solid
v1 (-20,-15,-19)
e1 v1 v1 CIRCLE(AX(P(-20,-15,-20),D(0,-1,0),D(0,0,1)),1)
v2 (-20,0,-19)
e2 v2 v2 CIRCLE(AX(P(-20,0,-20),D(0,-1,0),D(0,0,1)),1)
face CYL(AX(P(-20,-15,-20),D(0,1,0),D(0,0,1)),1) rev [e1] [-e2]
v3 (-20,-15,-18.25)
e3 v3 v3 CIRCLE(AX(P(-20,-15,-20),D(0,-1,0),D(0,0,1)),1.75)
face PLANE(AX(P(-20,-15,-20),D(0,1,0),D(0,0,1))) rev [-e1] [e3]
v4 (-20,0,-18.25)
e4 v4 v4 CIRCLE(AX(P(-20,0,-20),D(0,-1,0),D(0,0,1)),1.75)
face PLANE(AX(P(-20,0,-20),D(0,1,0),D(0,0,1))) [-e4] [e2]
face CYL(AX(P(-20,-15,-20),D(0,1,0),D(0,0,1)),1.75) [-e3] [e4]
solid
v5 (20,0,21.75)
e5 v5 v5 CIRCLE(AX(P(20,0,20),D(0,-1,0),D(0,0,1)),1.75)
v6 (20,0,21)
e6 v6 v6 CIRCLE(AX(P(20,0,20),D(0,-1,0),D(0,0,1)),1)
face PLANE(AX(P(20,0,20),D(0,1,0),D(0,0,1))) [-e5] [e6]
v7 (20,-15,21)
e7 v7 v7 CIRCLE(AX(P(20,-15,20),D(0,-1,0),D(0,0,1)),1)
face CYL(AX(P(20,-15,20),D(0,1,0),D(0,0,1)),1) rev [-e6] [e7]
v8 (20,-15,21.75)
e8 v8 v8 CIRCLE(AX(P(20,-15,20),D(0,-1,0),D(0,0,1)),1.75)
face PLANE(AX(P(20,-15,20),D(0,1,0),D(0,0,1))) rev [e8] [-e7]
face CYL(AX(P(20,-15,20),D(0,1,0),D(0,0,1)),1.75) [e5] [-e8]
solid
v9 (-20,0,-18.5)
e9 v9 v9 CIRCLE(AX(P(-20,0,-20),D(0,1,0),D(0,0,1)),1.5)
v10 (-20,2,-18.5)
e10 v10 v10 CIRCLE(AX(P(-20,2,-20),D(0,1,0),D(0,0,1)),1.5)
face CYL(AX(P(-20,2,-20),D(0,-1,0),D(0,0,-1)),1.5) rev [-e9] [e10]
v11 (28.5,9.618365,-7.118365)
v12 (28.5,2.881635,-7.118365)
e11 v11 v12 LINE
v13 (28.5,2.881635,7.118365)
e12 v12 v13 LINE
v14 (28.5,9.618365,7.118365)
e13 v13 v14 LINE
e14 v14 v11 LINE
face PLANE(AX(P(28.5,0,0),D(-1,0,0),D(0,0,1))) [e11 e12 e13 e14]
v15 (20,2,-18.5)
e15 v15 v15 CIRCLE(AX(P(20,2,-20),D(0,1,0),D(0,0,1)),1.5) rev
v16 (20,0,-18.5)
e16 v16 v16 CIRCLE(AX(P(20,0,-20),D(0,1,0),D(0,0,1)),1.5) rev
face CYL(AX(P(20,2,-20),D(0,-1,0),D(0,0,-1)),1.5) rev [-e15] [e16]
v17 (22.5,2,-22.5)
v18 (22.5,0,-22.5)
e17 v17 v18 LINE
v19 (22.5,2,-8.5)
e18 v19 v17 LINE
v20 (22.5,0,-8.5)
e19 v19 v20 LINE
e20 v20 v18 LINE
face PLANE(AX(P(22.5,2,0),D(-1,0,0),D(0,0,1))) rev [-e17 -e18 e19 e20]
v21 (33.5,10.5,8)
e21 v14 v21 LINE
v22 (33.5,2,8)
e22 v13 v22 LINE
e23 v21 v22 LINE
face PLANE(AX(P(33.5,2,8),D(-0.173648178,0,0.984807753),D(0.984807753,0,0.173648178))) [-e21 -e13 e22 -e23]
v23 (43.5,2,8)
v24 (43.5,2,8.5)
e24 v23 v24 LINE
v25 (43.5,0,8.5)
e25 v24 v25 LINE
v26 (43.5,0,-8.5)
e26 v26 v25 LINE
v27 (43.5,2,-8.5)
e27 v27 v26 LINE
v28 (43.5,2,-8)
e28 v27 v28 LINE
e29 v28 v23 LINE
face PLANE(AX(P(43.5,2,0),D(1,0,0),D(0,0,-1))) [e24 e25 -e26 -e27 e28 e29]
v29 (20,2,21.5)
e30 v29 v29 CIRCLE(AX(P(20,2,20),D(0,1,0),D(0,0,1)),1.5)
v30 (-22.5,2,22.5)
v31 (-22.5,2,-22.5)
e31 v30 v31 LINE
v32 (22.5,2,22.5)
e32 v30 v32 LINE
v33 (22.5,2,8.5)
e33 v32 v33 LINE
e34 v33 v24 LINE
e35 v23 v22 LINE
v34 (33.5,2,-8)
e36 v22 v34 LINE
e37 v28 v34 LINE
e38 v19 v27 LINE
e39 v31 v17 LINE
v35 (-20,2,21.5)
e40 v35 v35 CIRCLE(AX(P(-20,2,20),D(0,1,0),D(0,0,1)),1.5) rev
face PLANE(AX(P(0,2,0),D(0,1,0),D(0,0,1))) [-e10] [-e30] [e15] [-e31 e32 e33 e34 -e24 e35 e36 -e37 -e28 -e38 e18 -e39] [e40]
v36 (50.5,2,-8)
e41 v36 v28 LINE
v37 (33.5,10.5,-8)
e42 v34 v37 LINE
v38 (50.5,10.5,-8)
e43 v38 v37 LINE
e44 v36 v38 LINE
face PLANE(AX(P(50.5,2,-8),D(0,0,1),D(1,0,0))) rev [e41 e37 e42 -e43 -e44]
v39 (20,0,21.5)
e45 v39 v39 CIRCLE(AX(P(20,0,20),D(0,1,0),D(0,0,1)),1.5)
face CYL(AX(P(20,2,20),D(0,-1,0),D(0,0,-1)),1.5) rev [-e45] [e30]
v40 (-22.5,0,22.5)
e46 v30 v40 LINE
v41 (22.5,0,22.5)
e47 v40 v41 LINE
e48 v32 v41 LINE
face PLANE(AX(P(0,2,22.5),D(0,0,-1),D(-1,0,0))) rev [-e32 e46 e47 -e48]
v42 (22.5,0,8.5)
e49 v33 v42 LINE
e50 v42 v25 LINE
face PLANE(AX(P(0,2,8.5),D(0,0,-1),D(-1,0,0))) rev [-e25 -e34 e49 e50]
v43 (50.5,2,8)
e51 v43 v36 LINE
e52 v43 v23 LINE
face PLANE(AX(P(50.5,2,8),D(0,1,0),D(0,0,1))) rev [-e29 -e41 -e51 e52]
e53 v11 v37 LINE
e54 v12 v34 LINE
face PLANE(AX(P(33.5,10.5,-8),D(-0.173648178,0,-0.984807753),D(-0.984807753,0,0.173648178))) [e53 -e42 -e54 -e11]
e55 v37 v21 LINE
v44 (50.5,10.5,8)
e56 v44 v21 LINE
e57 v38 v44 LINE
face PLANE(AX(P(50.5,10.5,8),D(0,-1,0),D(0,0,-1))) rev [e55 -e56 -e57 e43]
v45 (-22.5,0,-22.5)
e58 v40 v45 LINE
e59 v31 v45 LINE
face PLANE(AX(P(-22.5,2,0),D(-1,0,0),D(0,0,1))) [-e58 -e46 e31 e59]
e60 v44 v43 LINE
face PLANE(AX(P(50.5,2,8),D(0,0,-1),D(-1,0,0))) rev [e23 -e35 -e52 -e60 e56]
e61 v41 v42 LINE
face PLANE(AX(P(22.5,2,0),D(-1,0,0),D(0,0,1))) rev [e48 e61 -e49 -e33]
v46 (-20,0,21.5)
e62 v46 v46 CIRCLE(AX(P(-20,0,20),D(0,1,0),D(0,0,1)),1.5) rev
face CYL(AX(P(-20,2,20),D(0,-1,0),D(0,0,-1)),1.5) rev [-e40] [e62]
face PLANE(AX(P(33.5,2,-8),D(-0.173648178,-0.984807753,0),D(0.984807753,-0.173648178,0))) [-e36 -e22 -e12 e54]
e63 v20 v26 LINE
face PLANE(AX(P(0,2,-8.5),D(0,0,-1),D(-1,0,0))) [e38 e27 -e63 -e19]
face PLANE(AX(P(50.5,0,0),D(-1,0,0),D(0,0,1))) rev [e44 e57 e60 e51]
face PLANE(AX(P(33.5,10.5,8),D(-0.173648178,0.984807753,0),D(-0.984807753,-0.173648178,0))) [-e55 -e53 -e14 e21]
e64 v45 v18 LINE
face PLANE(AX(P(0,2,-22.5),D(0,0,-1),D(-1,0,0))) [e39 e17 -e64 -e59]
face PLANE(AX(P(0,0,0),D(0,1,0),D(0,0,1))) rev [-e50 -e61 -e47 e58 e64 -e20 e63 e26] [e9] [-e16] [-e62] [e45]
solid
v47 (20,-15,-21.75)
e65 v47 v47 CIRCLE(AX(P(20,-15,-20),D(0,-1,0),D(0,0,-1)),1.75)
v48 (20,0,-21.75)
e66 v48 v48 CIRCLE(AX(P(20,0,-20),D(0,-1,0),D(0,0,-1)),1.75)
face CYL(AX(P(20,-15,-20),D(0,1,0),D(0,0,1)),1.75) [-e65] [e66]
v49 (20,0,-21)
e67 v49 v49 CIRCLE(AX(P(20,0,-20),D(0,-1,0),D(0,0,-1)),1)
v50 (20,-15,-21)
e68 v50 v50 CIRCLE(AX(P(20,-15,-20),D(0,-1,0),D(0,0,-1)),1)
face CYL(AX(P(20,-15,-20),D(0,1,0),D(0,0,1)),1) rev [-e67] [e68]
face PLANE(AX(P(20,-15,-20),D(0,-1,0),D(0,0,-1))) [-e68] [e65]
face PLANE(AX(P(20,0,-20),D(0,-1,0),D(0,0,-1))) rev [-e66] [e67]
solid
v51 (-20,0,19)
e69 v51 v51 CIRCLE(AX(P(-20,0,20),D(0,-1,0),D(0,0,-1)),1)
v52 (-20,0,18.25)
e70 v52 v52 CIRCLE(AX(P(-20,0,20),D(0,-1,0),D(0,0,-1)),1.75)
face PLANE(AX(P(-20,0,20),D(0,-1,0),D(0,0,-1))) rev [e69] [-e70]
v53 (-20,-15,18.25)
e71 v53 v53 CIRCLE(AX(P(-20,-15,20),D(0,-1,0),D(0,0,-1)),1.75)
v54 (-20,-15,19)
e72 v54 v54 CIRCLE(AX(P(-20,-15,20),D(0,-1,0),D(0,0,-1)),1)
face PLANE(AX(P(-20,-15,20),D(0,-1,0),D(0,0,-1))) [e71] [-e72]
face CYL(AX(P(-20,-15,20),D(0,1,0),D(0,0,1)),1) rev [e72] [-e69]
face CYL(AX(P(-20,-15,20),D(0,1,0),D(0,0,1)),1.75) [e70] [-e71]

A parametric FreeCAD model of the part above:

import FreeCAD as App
import Part
import Sketcher
from FreeCAD import Vector


def add_polygon(sketch, points):
    """Adds a closed chain of lines whose ends are joined by coincident constraints."""
    first, n = sketch.GeometryCount, len(points)
    for a, b in zip(points, points[1:] + points[:1]):
        sketch.addGeometry(Part.LineSegment(App.Vector(*a, 0), App.Vector(*b, 0)), False)
    for i in range(n):
        sketch.addConstraint(Sketcher.Constraint("Coincident", first + i, 2, first + (i + 1) % n, 1))

doc = App.newDocument("Part")
body = doc.addObject("PartDesign::Body", "Body")

sketch1 = body.newObject("Sketcher::SketchObject", "Sketch")
sketch1.AttachmentSupport = (doc.getObject("XZ_Plane"), [""])
sketch1.MapMode = "FlatFace"
add_polygon(sketch1, [(-22.5, -22.5), (-22.5, 22.5), (22.5, 22.5), (22.5, 8.5), (43.5, 8.5), (43.5, -8.5), (22.5, -8.5), (22.5, -22.5)])
sketch1.addGeometry(Part.Circle(Vector(-20, 20, 0), Vector(0, 0, 1), 1.5), False)
sketch1.addGeometry(Part.Circle(Vector(20, 20, 0), Vector(0, 0, 1), 1.5), False)
sketch1.addGeometry(Part.Circle(Vector(-20, -20, 0), Vector(0, 0, 1), 1.5), False)
sketch1.addGeometry(Part.Circle(Vector(20, -20, 0), Vector(0, 0, 1), 1.5), False)
sketch1.addConstraint([
    Sketcher.Constraint("Vertical", 0),
    Sketcher.Constraint("Horizontal", 1),
    Sketcher.Constraint("Vertical", 2),
    Sketcher.Constraint("Horizontal", 3),
    Sketcher.Constraint("Vertical", 4),
    Sketcher.Constraint("Horizontal", 5),
    Sketcher.Constraint("Vertical", 6),
    Sketcher.Constraint("Horizontal", 7),
    Sketcher.Constraint("Equal", 8, 9),
    Sketcher.Constraint("Equal", 9, 10),
    Sketcher.Constraint("Equal", 10, 11),
    Sketcher.Constraint("Symmetric", 9, 3, 10, 3, -1, 1),
    Sketcher.Constraint("Symmetric", 8, 3, 11, 3, -1, 1),
    Sketcher.Constraint("Symmetric", 0, 2, 6, 2, -1, 1),
    Sketcher.Constraint("Symmetric", 8, 3, 9, 3, -2),
    Sketcher.Constraint("Symmetric", 2, 2, 5, 2, -1),
    Sketcher.Constraint("Equal", 7, 0),
    Sketcher.Constraint("Diameter", 8, 3.0),
    Sketcher.Constraint("DistanceX", 1, 1, 1, 2, 45.0),
    Sketcher.Constraint("DistanceX", 3, 1, 3, 2, 21.0),
    Sketcher.Constraint("DistanceY", 2, 2, 2, 1, 14.0),
    Sketcher.Constraint("DistanceX", 8, 3, -1, 1, 20.0),
    Sketcher.Constraint("DistanceY", -1, 1, 8, 3, 20.0),
])
pad1 = body.newObject("PartDesign::Pad", "Pad")
pad1.Profile = sketch1
pad1.Length = 2
pad1.Reversed = True
body2 = doc.addObject("PartDesign::Body", "Body001")

sketch2 = body2.newObject("Sketcher::SketchObject", "Sketch001")
sketch2.AttachmentSupport = (doc.getObject("XZ_Plane001"), [""])
sketch2.MapMode = "FlatFace"
sketch2.addGeometry([
    Part.Circle(Vector(-20, 20, 0), Vector(0, 0, 1), 1.8),
    Part.Circle(Vector(-20, 20, 0), Vector(0, 0, 1), 1),
], False)
sketch2.addConstraint([
    Sketcher.Constraint("Coincident", 1, 3, 0, 3),
    Sketcher.Constraint("Diameter", 1, 2.0),
    Sketcher.Constraint("Diameter", 0, 3.5),
    Sketcher.Constraint("DistanceX", 0, 3, -1, 1, 20.0),
    Sketcher.Constraint("DistanceY", -1, 1, 0, 3, 20.0),
])
pad2 = body2.newObject("PartDesign::Pad", "Pad001")
pad2.Profile = sketch2
pad2.Length = 15
body3 = doc.addObject("PartDesign::Body", "Body002")

sketch3 = body3.newObject("Sketcher::SketchObject", "Sketch002")
sketch3.AttachmentSupport = (doc.getObject("XZ_Plane002"), [""])
sketch3.MapMode = "FlatFace"
sketch3.addGeometry([
    Part.Circle(Vector(20, 20, 0), Vector(0, 0, 1), 1.8),
    Part.Circle(Vector(20, 20, 0), Vector(0, 0, 1), 1),
], False)
sketch3.addConstraint([
    Sketcher.Constraint("Coincident", 1, 3, 0, 3),
    Sketcher.Constraint("Diameter", 1, 2.0),
    Sketcher.Constraint("Diameter", 0, 3.5),
    Sketcher.Constraint("DistanceX", -1, 1, 0, 3, 20.0),
    Sketcher.Constraint("DistanceY", -1, 1, 0, 3, 20.0),
])
pad3 = body3.newObject("PartDesign::Pad", "Pad002")
pad3.Profile = sketch3
pad3.Length = 15
body4 = doc.addObject("PartDesign::Body", "Body003")

sketch4 = body4.newObject("Sketcher::SketchObject", "Sketch003")
sketch4.AttachmentSupport = (doc.getObject("XZ_Plane003"), [""])
sketch4.MapMode = "FlatFace"
sketch4.addGeometry([
    Part.Circle(Vector(20, -20, 0), Vector(0, 0, 1), 1.8),
    Part.Circle(Vector(20, -20, 0), Vector(0, 0, 1), 1),
], False)
sketch4.addConstraint([
    Sketcher.Constraint("Coincident", 1, 3, 0, 3),
    Sketcher.Constraint("Diameter", 1, 2.0),
    Sketcher.Constraint("Diameter", 0, 3.5),
    Sketcher.Constraint("DistanceX", -1, 1, 0, 3, 20.0),
    Sketcher.Constraint("DistanceY", 0, 3, -1, 1, 20.0),
])
pad4 = body4.newObject("PartDesign::Pad", "Pad003")
pad4.Profile = sketch4
pad4.Length = 15
body5 = doc.addObject("PartDesign::Body", "Body004")

sketch5 = body5.newObject("Sketcher::SketchObject", "Sketch004")
sketch5.AttachmentSupport = (doc.getObject("XZ_Plane004"), [""])
sketch5.MapMode = "FlatFace"
sketch5.addGeometry([
    Part.Circle(Vector(-20, -20, 0), Vector(0, 0, 1), 1.8),
    Part.Circle(Vector(-20, -20, 0), Vector(0, 0, 1), 1),
], False)
sketch5.addConstraint([
    Sketcher.Constraint("Coincident", 1, 3, 0, 3),
    Sketcher.Constraint("Diameter", 1, 2.0),
    Sketcher.Constraint("Diameter", 0, 3.5),
    Sketcher.Constraint("DistanceX", 0, 3, -1, 1, 20.0),
    Sketcher.Constraint("DistanceY", 0, 3, -1, 1, 20.0),
])
pad5 = body5.newObject("PartDesign::Pad", "Pad004")
pad5.Profile = sketch5
pad5.Length = 15
body6 = doc.addObject("PartDesign::Body", "Body005")

sketch6 = body6.newObject("Sketcher::SketchObject", "Sketch005")
sketch6.AttachmentSupport = (doc.getObject("YZ_Plane005"), [""])
sketch6.MapMode = "FlatFace"
sketch6.AttachmentOffset = App.Placement(Vector(0, 0, 43.5), App.Rotation())
add_polygon(sketch6, [(10, 8), (2, 8), (2, -8), (10, -8)])
sketch6.addConstraint([
    Sketcher.Constraint("Horizontal", 0),
    Sketcher.Constraint("Vertical", 1),
    Sketcher.Constraint("Horizontal", 2),
    Sketcher.Constraint("Vertical", 3),
    Sketcher.Constraint("DistanceY", 1, 2, 1, 1, 16.0),
    Sketcher.Constraint("DistanceX", 0, 2, 0, 1, 8.5),
    Sketcher.Constraint("DistanceX", -1, 1, 0, 2, 2.0),
    Sketcher.Constraint("DistanceY", -1, 1, 0, 2, 8.0),
])
pad6 = body6.newObject("PartDesign::Pad", "Pad005")
pad6.Profile = sketch6
pad6.Type = "TwoLengths"
pad6.Length = 7
pad6.Length2 = 10
doc.recompute()

boolean = body.newObject("PartDesign::Boolean", "Boolean")
boolean.Type = "Fuse"
boolean.addObjects([body6])

sketch7 = body.newObject("Sketcher::SketchObject", "Sketch006")
sketch7.AttachmentSupport = (doc.getObject("YZ_Plane"), [""])
sketch7.MapMode = "FlatFace"
sketch7.AttachmentOffset = App.Placement(Vector(0, 0, 33.5), App.Rotation())
add_polygon(sketch7, [(10, -8), (2, -8), (2, 8), (10, 8)])
sketch7.addConstraint([
    Sketcher.Constraint("Horizontal", 0),
    Sketcher.Constraint("Vertical", 1),
    Sketcher.Constraint("Horizontal", 2),
    Sketcher.Constraint("Vertical", 3),
    Sketcher.Constraint("DistanceY", 1, 1, 1, 2, 16.0),
    Sketcher.Constraint("DistanceX", 0, 2, 0, 1, 8.5),
    Sketcher.Constraint("DistanceX", -1, 1, 0, 2, 2.0),
    Sketcher.Constraint("DistanceY", 0, 2, -1, 1, 8.0),
])
pad7 = body.newObject("PartDesign::Pad", "Pad006")
pad7.Profile = sketch7
pad7.Length = 5
pad7.Reversed = True
pad7.TaperAngle = -10

doc.recompute()
